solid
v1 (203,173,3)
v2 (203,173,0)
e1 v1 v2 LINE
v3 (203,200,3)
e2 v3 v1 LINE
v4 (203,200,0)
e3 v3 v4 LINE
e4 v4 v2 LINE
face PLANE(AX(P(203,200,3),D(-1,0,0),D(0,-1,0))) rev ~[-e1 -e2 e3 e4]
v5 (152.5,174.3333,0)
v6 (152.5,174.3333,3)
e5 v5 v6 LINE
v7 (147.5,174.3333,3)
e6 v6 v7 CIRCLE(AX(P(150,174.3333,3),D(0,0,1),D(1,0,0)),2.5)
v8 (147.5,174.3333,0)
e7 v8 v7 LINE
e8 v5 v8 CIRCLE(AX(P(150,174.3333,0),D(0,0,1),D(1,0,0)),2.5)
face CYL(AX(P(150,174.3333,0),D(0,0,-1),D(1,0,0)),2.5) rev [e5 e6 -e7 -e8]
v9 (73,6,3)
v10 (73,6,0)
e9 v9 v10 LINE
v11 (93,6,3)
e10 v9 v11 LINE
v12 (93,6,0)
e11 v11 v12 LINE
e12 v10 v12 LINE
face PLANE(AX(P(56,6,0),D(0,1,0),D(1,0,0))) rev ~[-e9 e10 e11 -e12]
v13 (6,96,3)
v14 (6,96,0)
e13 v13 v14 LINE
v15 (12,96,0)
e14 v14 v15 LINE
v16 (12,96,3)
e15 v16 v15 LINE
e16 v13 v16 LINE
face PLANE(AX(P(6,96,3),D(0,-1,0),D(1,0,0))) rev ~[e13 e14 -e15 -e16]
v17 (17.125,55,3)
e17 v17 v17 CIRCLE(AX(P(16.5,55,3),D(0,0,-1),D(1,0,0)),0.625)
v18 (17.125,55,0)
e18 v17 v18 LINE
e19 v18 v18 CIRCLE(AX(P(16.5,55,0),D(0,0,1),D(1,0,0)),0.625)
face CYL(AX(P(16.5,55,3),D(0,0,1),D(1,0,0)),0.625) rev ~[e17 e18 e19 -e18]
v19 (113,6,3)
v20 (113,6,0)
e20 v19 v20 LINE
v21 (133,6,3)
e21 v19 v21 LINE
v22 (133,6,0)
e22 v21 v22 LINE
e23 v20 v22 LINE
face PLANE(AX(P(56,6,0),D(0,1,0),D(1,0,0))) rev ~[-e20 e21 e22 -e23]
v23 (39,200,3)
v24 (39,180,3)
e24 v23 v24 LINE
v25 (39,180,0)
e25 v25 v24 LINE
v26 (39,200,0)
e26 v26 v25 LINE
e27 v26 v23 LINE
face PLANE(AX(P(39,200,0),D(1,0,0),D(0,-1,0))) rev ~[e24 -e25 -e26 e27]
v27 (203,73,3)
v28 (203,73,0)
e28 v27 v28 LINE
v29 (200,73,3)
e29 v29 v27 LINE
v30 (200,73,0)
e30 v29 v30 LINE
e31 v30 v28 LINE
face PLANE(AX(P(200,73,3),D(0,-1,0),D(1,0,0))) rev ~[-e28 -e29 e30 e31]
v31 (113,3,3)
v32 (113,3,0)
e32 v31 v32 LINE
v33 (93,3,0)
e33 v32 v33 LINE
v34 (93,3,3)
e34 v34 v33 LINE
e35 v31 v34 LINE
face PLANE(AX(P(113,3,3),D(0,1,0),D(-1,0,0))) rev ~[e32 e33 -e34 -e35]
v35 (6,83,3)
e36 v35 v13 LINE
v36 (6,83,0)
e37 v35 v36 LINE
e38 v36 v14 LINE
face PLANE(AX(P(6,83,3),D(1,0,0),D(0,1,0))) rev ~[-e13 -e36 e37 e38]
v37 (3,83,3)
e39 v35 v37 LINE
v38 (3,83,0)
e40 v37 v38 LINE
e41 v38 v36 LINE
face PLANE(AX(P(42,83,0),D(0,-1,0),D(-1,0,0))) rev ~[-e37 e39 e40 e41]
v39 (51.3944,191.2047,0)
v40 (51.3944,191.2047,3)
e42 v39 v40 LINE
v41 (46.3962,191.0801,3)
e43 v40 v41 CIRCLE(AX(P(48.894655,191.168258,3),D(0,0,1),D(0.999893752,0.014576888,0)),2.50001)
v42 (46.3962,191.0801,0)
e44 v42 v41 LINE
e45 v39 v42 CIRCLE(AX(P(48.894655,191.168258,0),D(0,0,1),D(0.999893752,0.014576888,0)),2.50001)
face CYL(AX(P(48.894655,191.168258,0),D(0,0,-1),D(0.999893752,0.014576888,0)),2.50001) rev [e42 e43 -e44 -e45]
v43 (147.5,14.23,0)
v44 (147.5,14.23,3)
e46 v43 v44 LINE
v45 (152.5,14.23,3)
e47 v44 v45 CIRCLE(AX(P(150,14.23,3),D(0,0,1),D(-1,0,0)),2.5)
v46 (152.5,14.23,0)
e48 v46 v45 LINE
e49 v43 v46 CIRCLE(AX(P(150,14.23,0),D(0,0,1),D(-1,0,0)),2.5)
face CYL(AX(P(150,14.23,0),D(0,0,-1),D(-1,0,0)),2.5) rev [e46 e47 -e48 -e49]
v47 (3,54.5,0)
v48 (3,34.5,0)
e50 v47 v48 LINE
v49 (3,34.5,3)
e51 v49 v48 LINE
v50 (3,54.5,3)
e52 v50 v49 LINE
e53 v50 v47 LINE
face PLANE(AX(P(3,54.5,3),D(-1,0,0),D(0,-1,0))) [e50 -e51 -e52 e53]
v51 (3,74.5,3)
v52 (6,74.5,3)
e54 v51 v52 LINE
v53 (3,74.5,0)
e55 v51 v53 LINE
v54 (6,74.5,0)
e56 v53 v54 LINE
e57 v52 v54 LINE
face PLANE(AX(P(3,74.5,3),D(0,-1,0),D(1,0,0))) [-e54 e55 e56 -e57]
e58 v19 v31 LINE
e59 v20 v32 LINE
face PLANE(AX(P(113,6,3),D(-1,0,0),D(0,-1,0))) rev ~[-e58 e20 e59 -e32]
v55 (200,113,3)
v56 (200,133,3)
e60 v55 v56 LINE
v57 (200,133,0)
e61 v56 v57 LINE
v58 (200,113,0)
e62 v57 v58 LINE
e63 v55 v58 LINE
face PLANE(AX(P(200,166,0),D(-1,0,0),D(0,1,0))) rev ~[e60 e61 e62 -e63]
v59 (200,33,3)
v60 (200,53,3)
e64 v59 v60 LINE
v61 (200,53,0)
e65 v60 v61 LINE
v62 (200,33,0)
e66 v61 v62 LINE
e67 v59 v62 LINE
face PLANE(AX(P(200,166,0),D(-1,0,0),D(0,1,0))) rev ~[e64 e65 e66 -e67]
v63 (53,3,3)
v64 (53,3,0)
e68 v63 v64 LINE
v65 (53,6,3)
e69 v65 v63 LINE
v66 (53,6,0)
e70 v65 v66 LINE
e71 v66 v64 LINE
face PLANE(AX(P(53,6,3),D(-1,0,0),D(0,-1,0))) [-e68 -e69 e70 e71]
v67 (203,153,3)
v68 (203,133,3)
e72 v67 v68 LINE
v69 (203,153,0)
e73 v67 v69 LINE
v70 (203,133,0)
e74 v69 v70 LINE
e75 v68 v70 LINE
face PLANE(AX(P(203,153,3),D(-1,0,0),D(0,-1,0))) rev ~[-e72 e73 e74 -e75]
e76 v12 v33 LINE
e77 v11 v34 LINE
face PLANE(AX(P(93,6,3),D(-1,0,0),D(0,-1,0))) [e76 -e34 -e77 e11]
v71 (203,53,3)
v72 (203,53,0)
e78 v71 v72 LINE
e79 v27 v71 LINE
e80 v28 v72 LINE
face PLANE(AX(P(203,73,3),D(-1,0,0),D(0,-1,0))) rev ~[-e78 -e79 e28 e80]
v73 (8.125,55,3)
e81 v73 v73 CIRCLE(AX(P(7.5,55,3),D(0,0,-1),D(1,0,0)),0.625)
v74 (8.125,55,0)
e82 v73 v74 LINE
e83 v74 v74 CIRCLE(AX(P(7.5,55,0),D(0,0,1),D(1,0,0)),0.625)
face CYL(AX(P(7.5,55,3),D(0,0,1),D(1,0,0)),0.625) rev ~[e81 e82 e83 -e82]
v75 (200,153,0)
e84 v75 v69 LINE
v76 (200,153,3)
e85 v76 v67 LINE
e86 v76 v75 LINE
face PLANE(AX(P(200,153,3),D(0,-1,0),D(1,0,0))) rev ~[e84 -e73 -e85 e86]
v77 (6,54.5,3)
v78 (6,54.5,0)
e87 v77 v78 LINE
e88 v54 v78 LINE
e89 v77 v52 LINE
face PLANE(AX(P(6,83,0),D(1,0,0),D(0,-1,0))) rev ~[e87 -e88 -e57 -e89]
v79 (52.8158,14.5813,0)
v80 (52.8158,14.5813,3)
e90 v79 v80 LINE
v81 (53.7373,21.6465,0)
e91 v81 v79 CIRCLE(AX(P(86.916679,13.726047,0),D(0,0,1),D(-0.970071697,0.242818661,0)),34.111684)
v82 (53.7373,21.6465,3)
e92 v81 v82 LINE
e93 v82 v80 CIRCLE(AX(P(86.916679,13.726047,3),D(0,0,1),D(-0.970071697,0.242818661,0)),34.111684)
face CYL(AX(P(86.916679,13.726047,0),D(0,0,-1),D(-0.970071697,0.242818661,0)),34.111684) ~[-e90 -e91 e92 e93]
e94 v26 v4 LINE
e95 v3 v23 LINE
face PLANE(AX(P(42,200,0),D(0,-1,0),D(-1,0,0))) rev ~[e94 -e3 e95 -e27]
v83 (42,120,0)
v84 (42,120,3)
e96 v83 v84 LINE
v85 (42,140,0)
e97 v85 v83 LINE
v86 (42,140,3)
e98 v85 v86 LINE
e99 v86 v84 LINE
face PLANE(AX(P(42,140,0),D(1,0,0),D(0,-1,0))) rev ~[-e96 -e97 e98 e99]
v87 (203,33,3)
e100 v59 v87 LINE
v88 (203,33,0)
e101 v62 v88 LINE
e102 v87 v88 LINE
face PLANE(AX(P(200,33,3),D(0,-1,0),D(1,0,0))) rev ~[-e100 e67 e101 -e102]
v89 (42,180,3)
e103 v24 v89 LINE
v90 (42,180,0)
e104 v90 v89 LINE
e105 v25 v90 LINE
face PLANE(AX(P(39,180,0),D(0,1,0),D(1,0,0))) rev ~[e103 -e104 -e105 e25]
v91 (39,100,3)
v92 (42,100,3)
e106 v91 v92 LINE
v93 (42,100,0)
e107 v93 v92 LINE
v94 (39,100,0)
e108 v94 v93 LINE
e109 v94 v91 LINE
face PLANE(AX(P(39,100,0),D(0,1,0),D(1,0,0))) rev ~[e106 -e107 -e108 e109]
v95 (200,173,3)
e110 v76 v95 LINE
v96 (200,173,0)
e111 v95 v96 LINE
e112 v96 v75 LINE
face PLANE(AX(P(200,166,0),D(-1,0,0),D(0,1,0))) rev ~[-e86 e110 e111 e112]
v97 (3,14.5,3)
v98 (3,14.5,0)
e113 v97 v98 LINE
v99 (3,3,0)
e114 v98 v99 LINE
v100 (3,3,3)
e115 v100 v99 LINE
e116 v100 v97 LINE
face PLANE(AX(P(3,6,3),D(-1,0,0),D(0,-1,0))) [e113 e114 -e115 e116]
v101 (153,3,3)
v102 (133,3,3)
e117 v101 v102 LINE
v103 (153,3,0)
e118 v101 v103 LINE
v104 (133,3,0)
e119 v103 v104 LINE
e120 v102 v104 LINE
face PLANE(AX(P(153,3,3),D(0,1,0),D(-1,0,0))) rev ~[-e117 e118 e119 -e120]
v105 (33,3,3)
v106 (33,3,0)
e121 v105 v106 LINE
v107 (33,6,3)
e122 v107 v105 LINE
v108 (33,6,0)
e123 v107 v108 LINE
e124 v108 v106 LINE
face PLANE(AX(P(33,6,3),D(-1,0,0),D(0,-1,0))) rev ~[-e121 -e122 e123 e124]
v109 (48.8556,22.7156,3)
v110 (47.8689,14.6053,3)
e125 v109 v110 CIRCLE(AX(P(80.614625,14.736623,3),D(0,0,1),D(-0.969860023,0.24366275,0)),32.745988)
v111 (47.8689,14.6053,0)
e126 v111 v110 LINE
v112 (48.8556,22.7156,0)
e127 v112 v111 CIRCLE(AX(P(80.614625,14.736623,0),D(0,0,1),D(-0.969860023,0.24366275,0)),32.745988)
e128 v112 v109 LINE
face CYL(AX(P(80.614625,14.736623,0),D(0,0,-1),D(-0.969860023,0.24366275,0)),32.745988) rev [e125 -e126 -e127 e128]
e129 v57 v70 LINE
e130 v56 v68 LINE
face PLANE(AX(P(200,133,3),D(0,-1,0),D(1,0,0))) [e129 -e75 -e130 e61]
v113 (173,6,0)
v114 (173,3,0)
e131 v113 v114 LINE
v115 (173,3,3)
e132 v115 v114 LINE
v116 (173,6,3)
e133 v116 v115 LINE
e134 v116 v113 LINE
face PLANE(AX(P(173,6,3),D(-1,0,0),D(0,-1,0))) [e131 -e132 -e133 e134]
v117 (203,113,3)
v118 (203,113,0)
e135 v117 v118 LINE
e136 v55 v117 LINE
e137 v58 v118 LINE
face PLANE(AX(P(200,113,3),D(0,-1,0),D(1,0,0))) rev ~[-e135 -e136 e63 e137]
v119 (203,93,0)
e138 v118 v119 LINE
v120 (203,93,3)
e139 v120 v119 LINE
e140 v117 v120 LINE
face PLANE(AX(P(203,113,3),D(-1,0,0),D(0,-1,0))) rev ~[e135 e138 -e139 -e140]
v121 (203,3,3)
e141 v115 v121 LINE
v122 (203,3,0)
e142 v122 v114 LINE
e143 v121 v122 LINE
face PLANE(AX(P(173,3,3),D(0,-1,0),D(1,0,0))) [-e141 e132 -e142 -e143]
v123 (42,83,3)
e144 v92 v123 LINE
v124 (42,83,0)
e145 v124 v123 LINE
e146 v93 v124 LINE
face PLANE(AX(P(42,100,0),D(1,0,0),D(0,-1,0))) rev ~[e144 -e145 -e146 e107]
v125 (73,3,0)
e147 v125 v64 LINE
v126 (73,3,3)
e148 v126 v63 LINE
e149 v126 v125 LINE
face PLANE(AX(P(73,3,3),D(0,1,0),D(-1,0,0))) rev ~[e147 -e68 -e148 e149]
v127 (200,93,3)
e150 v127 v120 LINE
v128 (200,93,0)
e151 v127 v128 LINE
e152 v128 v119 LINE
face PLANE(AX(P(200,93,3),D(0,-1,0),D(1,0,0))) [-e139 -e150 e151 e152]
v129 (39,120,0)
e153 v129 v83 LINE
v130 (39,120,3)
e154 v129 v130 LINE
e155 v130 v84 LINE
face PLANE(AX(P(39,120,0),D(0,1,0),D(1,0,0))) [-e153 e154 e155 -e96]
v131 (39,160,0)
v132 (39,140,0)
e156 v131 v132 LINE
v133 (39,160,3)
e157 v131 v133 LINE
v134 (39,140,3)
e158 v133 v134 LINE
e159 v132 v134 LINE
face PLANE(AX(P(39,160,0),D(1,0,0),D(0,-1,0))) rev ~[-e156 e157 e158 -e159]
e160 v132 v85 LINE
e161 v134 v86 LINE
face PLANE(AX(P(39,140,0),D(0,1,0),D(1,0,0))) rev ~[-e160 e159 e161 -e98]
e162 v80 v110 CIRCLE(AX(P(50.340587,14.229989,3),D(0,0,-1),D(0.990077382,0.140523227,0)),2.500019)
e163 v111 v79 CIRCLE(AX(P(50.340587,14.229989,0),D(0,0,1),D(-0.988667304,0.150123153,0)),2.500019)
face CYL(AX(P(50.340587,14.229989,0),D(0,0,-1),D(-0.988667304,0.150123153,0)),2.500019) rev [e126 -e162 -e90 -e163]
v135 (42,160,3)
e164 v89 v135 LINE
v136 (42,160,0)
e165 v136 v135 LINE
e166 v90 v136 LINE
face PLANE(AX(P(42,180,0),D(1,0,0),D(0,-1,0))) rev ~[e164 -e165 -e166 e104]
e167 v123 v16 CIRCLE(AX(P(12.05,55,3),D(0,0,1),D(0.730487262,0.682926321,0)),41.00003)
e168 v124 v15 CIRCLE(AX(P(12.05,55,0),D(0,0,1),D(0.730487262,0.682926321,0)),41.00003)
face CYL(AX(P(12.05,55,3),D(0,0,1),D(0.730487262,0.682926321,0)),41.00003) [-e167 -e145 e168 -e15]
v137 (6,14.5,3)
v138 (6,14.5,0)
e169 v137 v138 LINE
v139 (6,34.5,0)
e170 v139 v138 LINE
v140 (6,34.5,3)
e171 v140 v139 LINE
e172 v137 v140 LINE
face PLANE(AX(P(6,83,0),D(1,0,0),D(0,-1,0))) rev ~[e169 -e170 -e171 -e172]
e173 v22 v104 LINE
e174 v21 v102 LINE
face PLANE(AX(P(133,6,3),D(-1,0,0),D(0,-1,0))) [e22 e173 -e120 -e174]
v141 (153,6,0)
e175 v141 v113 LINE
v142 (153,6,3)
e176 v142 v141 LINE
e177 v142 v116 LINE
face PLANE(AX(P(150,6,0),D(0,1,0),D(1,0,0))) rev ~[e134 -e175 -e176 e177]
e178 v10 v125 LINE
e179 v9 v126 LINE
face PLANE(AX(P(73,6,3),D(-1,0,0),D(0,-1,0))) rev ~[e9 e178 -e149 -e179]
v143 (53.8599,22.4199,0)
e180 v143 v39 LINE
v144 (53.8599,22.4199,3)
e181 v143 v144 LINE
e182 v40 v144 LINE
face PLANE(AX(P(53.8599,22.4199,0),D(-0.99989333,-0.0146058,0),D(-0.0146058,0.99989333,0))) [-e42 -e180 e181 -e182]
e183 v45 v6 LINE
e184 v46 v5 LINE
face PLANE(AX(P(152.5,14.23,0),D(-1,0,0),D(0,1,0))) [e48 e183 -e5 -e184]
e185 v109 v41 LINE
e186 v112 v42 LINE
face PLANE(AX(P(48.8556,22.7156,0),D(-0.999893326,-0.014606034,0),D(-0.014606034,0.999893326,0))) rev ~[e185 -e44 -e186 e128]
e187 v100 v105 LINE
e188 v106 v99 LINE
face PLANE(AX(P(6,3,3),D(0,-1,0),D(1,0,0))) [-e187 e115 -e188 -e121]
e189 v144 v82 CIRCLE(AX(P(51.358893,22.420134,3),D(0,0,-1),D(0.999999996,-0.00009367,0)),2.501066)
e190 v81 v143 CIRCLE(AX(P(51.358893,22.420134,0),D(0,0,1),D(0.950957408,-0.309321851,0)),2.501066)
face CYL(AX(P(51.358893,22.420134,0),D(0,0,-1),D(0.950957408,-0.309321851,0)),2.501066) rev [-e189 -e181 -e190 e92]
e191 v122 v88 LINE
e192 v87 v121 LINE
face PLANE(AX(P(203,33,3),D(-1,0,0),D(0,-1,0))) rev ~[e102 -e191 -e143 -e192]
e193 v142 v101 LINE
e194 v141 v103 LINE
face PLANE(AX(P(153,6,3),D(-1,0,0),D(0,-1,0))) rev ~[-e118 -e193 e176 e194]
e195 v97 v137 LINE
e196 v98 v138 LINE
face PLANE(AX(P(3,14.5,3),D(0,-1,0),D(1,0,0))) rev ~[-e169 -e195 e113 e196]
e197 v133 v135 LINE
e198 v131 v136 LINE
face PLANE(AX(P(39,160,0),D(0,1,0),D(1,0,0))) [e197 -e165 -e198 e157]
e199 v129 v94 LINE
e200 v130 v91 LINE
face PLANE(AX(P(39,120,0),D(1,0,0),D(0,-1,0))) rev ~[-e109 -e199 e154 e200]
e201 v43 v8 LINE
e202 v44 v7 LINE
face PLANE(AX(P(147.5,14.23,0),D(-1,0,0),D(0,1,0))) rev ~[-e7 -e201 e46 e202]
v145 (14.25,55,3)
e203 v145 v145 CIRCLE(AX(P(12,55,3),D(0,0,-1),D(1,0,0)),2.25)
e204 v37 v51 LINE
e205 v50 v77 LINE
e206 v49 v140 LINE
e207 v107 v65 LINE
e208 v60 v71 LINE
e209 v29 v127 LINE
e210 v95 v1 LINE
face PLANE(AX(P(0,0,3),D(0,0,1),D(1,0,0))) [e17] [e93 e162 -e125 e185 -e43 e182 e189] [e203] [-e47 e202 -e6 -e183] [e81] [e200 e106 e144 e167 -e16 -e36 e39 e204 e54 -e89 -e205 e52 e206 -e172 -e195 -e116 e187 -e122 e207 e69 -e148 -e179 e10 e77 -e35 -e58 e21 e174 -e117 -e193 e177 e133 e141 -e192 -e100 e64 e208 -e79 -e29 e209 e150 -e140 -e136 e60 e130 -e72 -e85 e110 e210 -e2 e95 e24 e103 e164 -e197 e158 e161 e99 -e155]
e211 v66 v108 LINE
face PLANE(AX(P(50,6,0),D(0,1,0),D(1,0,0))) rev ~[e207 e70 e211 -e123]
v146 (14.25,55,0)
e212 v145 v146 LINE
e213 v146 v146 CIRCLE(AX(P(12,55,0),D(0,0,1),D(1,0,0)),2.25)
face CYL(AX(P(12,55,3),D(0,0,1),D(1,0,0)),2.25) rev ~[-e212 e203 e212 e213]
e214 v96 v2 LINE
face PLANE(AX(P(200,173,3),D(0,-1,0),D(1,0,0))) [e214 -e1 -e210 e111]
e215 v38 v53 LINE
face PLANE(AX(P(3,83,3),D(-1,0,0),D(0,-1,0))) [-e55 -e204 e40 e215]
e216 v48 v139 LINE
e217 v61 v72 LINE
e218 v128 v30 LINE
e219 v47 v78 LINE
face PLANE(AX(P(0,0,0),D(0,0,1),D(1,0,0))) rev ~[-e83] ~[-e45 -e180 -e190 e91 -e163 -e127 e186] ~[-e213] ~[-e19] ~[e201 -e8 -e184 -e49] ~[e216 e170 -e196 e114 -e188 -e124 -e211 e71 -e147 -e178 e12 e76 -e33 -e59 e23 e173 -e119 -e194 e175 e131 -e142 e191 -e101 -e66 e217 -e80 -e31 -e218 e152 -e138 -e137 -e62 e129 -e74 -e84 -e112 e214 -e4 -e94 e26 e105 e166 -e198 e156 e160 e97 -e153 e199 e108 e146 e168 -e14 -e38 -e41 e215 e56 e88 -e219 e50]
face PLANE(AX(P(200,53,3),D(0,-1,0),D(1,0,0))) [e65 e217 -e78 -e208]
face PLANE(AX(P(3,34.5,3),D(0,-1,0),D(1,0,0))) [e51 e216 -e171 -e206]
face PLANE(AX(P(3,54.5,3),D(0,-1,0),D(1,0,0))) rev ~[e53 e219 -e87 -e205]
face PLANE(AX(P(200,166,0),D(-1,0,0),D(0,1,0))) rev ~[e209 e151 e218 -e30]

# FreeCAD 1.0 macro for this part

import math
import FreeCAD as App
import Part
import Sketcher
Q = App.Units.Quantity


def add_polygon(sketch, points):
    """Adds a closed chain of lines whose ends are joined by coincident constraints."""
    first, n = sketch.GeometryCount, len(points)
    for a, b in zip(points, points[1:] + points[:1]):
        sketch.addGeometry(Part.LineSegment(App.Vector(*a, 0), App.Vector(*b, 0)), False)
    for i in range(n):
        sketch.addConstraint(Sketcher.Constraint("Coincident", first + i, 2, first + (i + 1) % n, 1))

doc = App.newDocument("Part")
body = doc.addObject("PartDesign::Body", "Body")

sketch1 = body.newObject("Sketcher::SketchObject", "Sketch")
sketch1.AttachmentSupport = (doc.getObject("XY_Plane"), [""])
sketch1.MapMode = "FlatFace"
add_polygon(sketch1, [(6, 83), (6, 6), (200, 6), (200, 200), (39, 200), (39, 180), (42, 180), (42, 160), (39, 160), (39, 140), (42, 140), (42, 120), (39, 120), (39, 100), (42, 100), (42, 83)])
sketch1.addGeometry(Part.ArcOfCircle(Part.Circle(App.Vector(50.3, 14.2, 0), App.Vector(0, 0, 1), 2.5), math.radians(171), math.radians(368)), False)
sketch1.addGeometry(Part.ArcOfCircle(Part.Circle(App.Vector(80.6, 14.7, 0), App.Vector(0, 0, 1), 32.7), math.radians(165.9), math.radians(180.23)), False)
sketch1.addGeometry(Part.LineSegment(App.Vector(48.9, 22.7, 0), App.Vector(46.4, 191.1, 0)), False)
sketch1.addGeometry(Part.ArcOfCircle(Part.Circle(App.Vector(48.9, 191.2, 0), App.Vector(0, 0, 1), 2.5), math.radians(1), math.radians(182)), False)
sketch1.addGeometry(Part.LineSegment(App.Vector(51.4, 191.2, 0), App.Vector(53.9, 22.4, 0)), False)
sketch1.addGeometry(Part.ArcOfCircle(Part.Circle(App.Vector(51.4, 22.4, 0), App.Vector(0, 0, 1), 2.5), math.radians(-18.02), math.radians(-0.01)), False)
sketch1.addGeometry(Part.ArcOfCircle(Part.Circle(App.Vector(86.9, 13.7, 0), App.Vector(0, 0, 1), 34.1), math.radians(166.57), math.radians(178.56)), False)
sketch1.addGeometry(Part.ArcOfCircle(Part.Circle(App.Vector(150, 174.3, 0), App.Vector(0, 0, 1), 2.5), math.radians(0), math.radians(180)), False)
sketch1.addGeometry(Part.LineSegment(App.Vector(152.5, 174.3, 0), App.Vector(152.5, 14.2, 0)), False)
sketch1.addGeometry(Part.ArcOfCircle(Part.Circle(App.Vector(150, 14.2, 0), App.Vector(0, 0, 1), 2.5), math.radians(180), math.radians(360)), False)
sketch1.addGeometry(Part.LineSegment(App.Vector(147.5, 14.2, 0), App.Vector(147.5, 174.3, 0)), False)
sketch1.addConstraint([
    Sketcher.Constraint("Coincident", 16, 1, 17, 2),
    Sketcher.Constraint("Coincident", 17, 1, 18, 1),
    Sketcher.Constraint("Coincident", 18, 2, 19, 2),
    Sketcher.Constraint("Tangent", 19, 1, 20, 1),
    Sketcher.Constraint("Coincident", 20, 2, 21, 2),
    Sketcher.Constraint("Coincident", 21, 1, 22, 1),
    Sketcher.Constraint("Coincident", 22, 2, 16, 2),
    Sketcher.Constraint("Tangent", 23, 1, 24, 1),
    Sketcher.Constraint("Tangent", 24, 2, 25, 2),
    Sketcher.Constraint("Tangent", 25, 1, 26, 1),
    Sketcher.Constraint("Tangent", 26, 2, 23, 2),
    Sketcher.Constraint("Vertical", 0),
    Sketcher.Constraint("Horizontal", 1),
    Sketcher.Constraint("Vertical", 2),
    Sketcher.Constraint("Horizontal", 3),
    Sketcher.Constraint("Vertical", 4),
    Sketcher.Constraint("Horizontal", 5),
    Sketcher.Constraint("Vertical", 6),
    Sketcher.Constraint("Horizontal", 7),
    Sketcher.Constraint("Vertical", 8),
    Sketcher.Constraint("Horizontal", 9),
    Sketcher.Constraint("Vertical", 10),
    Sketcher.Constraint("Horizontal", 11),
    Sketcher.Constraint("Vertical", 12),
    Sketcher.Constraint("Horizontal", 13),
    Sketcher.Constraint("Vertical", 14),
    Sketcher.Constraint("Horizontal", 15),
    Sketcher.Constraint("Vertical", 24),
    Sketcher.Constraint("Vertical", 26),
    Sketcher.Constraint("Equal", 16, 19),
    Sketcher.Constraint("Equal", 19, 23),
    Sketcher.Constraint("Parallel", 18, 20),
    Sketcher.Constraint("Horizontal", 16, 3, 25, 3),
    Sketcher.Constraint("Vertical", 4, 2, 7, 2),
    Sketcher.Constraint("Vertical", 6, 2, 9, 2),
    Sketcher.Constraint("Vertical", 8, 2, 11, 2),
    Sketcher.Constraint("Vertical", 10, 2, 13, 2),
    Sketcher.Constraint("Equal", 1, 2),
    Sketcher.Constraint("Equal", 4, 6),
    Sketcher.Constraint("Equal", 6, 8),
    Sketcher.Constraint("Equal", 8, 10),
    Sketcher.Constraint("Equal", 10, 12),
    Sketcher.Constraint("DistanceX", 1, 1, 1, 2, Q("194 mm")),
    Sketcher.Constraint("Radius", 16, Q("2.5 mm")),
    Sketcher.Constraint("DistanceX", 3, 2, 3, 1, Q("161 mm")),
    Sketcher.Constraint("DistanceX", 5, 1, 5, 2, Q("3 mm")),
    Sketcher.Constraint("DistanceY", 0, 2, 0, 1, Q("77 mm")),
    Sketcher.Constraint("DistanceY", 4, 2, 4, 1, Q("20 mm")),
    Sketcher.Constraint("DistanceX", -1, 1, 23, 3, Q("150 mm")),
    Sketcher.Constraint("DistanceX", -1, 1, 0, 2, Q("6 mm")),
    Sketcher.Constraint("DistanceY", -1, 1, 0, 2, Q("6 mm")),
    Sketcher.Constraint("Radius", 17, Q("32.746 mm")),
    Sketcher.Constraint("Radius", 21, Q("2.501 mm")),
    Sketcher.Constraint("Radius", 22, Q("34.1117 mm")),
    Sketcher.Constraint("DistanceY", -1, 1, 16, 3, Q("14.23 mm")),
    Sketcher.Constraint("DistanceY", -1, 1, 18, 2, Q("191.08 mm")),
    Sketcher.Constraint("DistanceX", -1, 1, 20, 2, Q("53.86 mm")),
    Sketcher.Constraint("DistanceY", -1, 1, 20, 2, Q("22.42 mm")),
    Sketcher.Constraint("DistanceX", 19, 3, 17, 3, Q("31.72 mm")),
    Sketcher.Constraint("DistanceX", 16, 1, 21, 3, Q("3.49 mm")),
    Sketcher.Constraint("DistanceY", 24, 2, 24, 1, Q("160.1033 mm")),
    Sketcher.Constraint("DistanceY", -1, 1, 22, 3, Q("13.726 mm")),
    Sketcher.Constraint("DistanceX", 16, 3, 17, 3, Q("30.274 mm")),
    Sketcher.Constraint("DistanceY", 21, 3, 19, 3, Q("168.748 mm")),
    Sketcher.Constraint("DistanceX", 17, 3, 22, 3, Q("6.302 mm")),
    Sketcher.Constraint("DistanceY", 22, 3, 21, 3, Q("8.694 mm")),
    Sketcher.Constraint("DistanceY", 21, 1, 17, 1, Q("1.069 mm")),
])
pad1 = body.newObject("PartDesign::Pad", "Pad")
pad1.Profile = sketch1
pad1.Length = 3

sketch2 = body.newObject("Sketcher::SketchObject", "Sketch001")
sketch2.AttachmentSupport = (doc.getObject("XY_Plane"), [""])
sketch2.MapMode = "FlatFace"
sketch2.AttachmentOffset = App.Placement(App.Vector(0, 0, 3), App.Rotation())
add_polygon(sketch2, [(200, 3), (200, 6), (173, 6), (173, 3)])
add_polygon(sketch2, [(153, 3), (153, 6), (133, 6), (133, 3)])
add_polygon(sketch2, [(113, 3), (113, 6), (93, 6), (93, 3)])
add_polygon(sketch2, [(73, 3), (73, 6), (53, 6), (53, 3)])
add_polygon(sketch2, [(33, 3), (33, 6), (6, 6), (6, 3)])
sketch2.addConstraint([
    Sketcher.Constraint("Vertical", 0),
    Sketcher.Constraint("Horizontal", 1),
    Sketcher.Constraint("Vertical", 2),
    Sketcher.Constraint("Horizontal", 3),
    Sketcher.Constraint("Vertical", 4),
    Sketcher.Constraint("Horizontal", 5),
    Sketcher.Constraint("Vertical", 6),
    Sketcher.Constraint("Horizontal", 7),
    Sketcher.Constraint("Vertical", 8),
    Sketcher.Constraint("Horizontal", 9),
    Sketcher.Constraint("Vertical", 10),
    Sketcher.Constraint("Horizontal", 11),
    Sketcher.Constraint("Vertical", 12),
    Sketcher.Constraint("Horizontal", 13),
    Sketcher.Constraint("Vertical", 14),
    Sketcher.Constraint("Horizontal", 15),
    Sketcher.Constraint("Vertical", 16),
    Sketcher.Constraint("Horizontal", 17),
    Sketcher.Constraint("Vertical", 18),
    Sketcher.Constraint("Horizontal", 19),
    Sketcher.Constraint("Horizontal", 1, 2, 4, 2),
    Sketcher.Constraint("Horizontal", 3, 2, 6, 2),
    Sketcher.Constraint("Horizontal", 5, 2, 8, 2),
    Sketcher.Constraint("Horizontal", 7, 2, 10, 2),
    Sketcher.Constraint("Horizontal", 9, 2, 12, 2),
    Sketcher.Constraint("Horizontal", 11, 2, 14, 2),
    Sketcher.Constraint("Horizontal", 13, 2, 16, 2),
    Sketcher.Constraint("Horizontal", 15, 2, 18, 2),
    Sketcher.Constraint("Equal", 7, 9),
    Sketcher.Constraint("Equal", 11, 13),
    Sketcher.Constraint("Equal", 3, 17),
    Sketcher.Constraint("DistanceX", 1, 2, 1, 1, Q("27 mm")),
    Sketcher.Constraint("DistanceX", 5, 2, 5, 1, Q("20 mm")),
    Sketcher.Constraint("DistanceY", 0, 1, 0, 2, Q("3 mm")),
    Sketcher.Constraint("DistanceX", -1, 1, 0, 2, Q("200 mm")),
    Sketcher.Constraint("DistanceY", -1, 1, 0, 2, Q("6 mm")),
    Sketcher.Constraint("DistanceX", -1, 1, 4, 2, Q("153 mm")),
    Sketcher.Constraint("DistanceX", -1, 1, 8, 2, Q("113 mm")),
    Sketcher.Constraint("DistanceX", -1, 1, 12, 2, Q("73 mm")),
    Sketcher.Constraint("DistanceX", -1, 1, 16, 2, Q("33 mm")),
])
pad2 = body.newObject("PartDesign::Pad", "Pad001")
pad2.Profile = sketch2
pad2.Length = 3
pad2.Reversed = True

sketch3 = body.newObject("Sketcher::SketchObject", "Sketch002")
sketch3.AttachmentSupport = (doc.getObject("XY_Plane"), [""])
sketch3.MapMode = "FlatFace"
sketch3.AttachmentOffset = App.Placement(App.Vector(0, 0, 3), App.Rotation())
add_polygon(sketch3, [(3, 3), (6, 3), (6, 14.5), (3, 14.5)])
add_polygon(sketch3, [(6, 74.5), (6, 83), (3, 83), (3, 74.5)])
add_polygon(sketch3, [(3, 34.5), (6, 34.5), (6, 54.5), (3, 54.5)])
sketch3.addConstraint([
    Sketcher.Constraint("Horizontal", 0),
    Sketcher.Constraint("Vertical", 1),
    Sketcher.Constraint("Horizontal", 2),
    Sketcher.Constraint("Vertical", 3),
    Sketcher.Constraint("Vertical", 4),
    Sketcher.Constraint("Horizontal", 5),
    Sketcher.Constraint("Vertical", 6),
    Sketcher.Constraint("Horizontal", 7),
    Sketcher.Constraint("Horizontal", 8),
    Sketcher.Constraint("Vertical", 9),
    Sketcher.Constraint("Horizontal", 10),
    Sketcher.Constraint("Vertical", 11),
    Sketcher.Constraint("Vertical", 1, 2, 4, 2),
    Sketcher.Constraint("Vertical", 3, 2, 5, 2),
    Sketcher.Constraint("Vertical", 7, 2, 8, 2),
    Sketcher.Constraint("Vertical", 6, 2, 10, 2),
    Sketcher.Constraint("DistanceX", 0, 1, 0, 2, Q("3 mm")),
    Sketcher.Constraint("DistanceY", -1, 1, 0, 2, Q("3 mm")),
    Sketcher.Constraint("DistanceX", -1, 1, 2, 2, Q("3 mm")),
    Sketcher.Constraint("DistanceY", 9, 1, 9, 2, Q("20 mm")),
    Sketcher.Constraint("DistanceY", 1, 1, 1, 2, Q("11.5 mm")),
    Sketcher.Constraint("DistanceY", 4, 1, 4, 2, Q("8.5 mm")),
    Sketcher.Constraint("DistanceY", -1, 1, 4, 2, Q("83 mm")),
    Sketcher.Constraint("DistanceY", 1, 2, 8, 2, Q("20 mm")),
])
pad3 = body.newObject("PartDesign::Pad", "Pad002")
pad3.Profile = sketch3
pad3.Length = 3
pad3.Reversed = True

sketch4 = body.newObject("Sketcher::SketchObject", "Sketch003")
sketch4.AttachmentSupport = (doc.getObject("XY_Plane"), [""])
sketch4.MapMode = "FlatFace"
sketch4.AttachmentOffset = App.Placement(App.Vector(0, 0, 3), App.Rotation())
add_polygon(sketch4, [(200, 33), (200, 3), (203, 3), (203, 33)])
add_polygon(sketch4, [(200, 73), (200, 53), (203, 53), (203, 73)])
add_polygon(sketch4, [(200, 113), (200, 93), (203, 93), (203, 113)])
add_polygon(sketch4, [(200, 153), (200, 133), (203, 133), (203, 153)])
add_polygon(sketch4, [(200, 200), (200, 173), (203, 173), (203, 200)])
sketch4.addConstraint([
    Sketcher.Constraint("Vertical", 0),
    Sketcher.Constraint("Horizontal", 1),
    Sketcher.Constraint("Vertical", 2),
    Sketcher.Constraint("Horizontal", 3),
    Sketcher.Constraint("Vertical", 4),
    Sketcher.Constraint("Horizontal", 5),
    Sketcher.Constraint("Vertical", 6),
    Sketcher.Constraint("Horizontal", 7),
    Sketcher.Constraint("Vertical", 8),
    Sketcher.Constraint("Horizontal", 9),
    Sketcher.Constraint("Vertical", 10),
    Sketcher.Constraint("Horizontal", 11),
    Sketcher.Constraint("Vertical", 12),
    Sketcher.Constraint("Horizontal", 13),
    Sketcher.Constraint("Vertical", 14),
    Sketcher.Constraint("Horizontal", 15),
    Sketcher.Constraint("Vertical", 16),
    Sketcher.Constraint("Horizontal", 17),
    Sketcher.Constraint("Vertical", 18),
    Sketcher.Constraint("Horizontal", 19),
    Sketcher.Constraint("Vertical", 3, 2, 4, 2),
    Sketcher.Constraint("Vertical", 2, 2, 5, 2),
    Sketcher.Constraint("Vertical", 7, 2, 8, 2),
    Sketcher.Constraint("Vertical", 6, 2, 9, 2),
    Sketcher.Constraint("Vertical", 11, 2, 12, 2),
    Sketcher.Constraint("Vertical", 10, 2, 13, 2),
    Sketcher.Constraint("Vertical", 15, 2, 16, 2),
    Sketcher.Constraint("Vertical", 14, 2, 17, 2),
    Sketcher.Constraint("Equal", 6, 8),
    Sketcher.Constraint("Equal", 10, 12),
    Sketcher.Constraint("DistanceX", 1, 1, 1, 2, Q("3 mm")),
    Sketcher.Constraint("DistanceY", 0, 2, 0, 1, Q("30 mm")),
    Sketcher.Constraint("DistanceY", 4, 2, 4, 1, Q("20 mm")),
    Sketcher.Constraint("DistanceY", 16, 2, 16, 1, Q("27 mm")),
    Sketcher.Constraint("DistanceX", -1, 1, 0, 2, Q("200 mm")),
    Sketcher.Constraint("DistanceY", -1, 1, 0, 2, Q("3 mm")),
    Sketcher.Constraint("DistanceY", -1, 1, 4, 2, Q("53 mm")),
    Sketcher.Constraint("DistanceY", -1, 1, 8, 2, Q("93 mm")),
    Sketcher.Constraint("DistanceY", -1, 1, 12, 2, Q("133 mm")),
    Sketcher.Constraint("DistanceY", -1, 1, 16, 2, Q("173 mm")),
])
pad4 = body.newObject("PartDesign::Pad", "Pad003")
pad4.Profile = sketch4
pad4.Length = 3
pad4.Reversed = True

sketch5 = body.newObject("Sketcher::SketchObject", "Sketch004")
sketch5.AttachmentSupport = (doc.getObject("XY_Plane"), [""])
sketch5.MapMode = "FlatFace"
sketch5.AttachmentOffset = App.Placement(App.Vector(0, 0, 3), App.Rotation())
sketch5.addGeometry([
    Part.Circle(App.Vector(7.5, 55, 0), App.Vector(0, 0, 1), 0.6),
    Part.Circle(App.Vector(16.5, 55, 0), App.Vector(0, 0, 1), 0.6),
    Part.Circle(App.Vector(12, 55, 0), App.Vector(0, 0, 1), 2.2),
], False)
sketch5.addConstraint([
    Sketcher.Constraint("Equal", 0, 1),
    Sketcher.Constraint("Horizontal", 0, 3, 1, 3),
    Sketcher.Constraint("Horizontal", 1, 3, 2, 3),
    Sketcher.Constraint("Diameter", 2, Q("4.5 mm")),
    Sketcher.Constraint("Diameter", 0, Q("1.25 mm")),
    Sketcher.Constraint("DistanceX", -1, 1, 2, 3, Q("12 mm")),
    Sketcher.Constraint("DistanceX", 0, 3, 1, 3, Q("9 mm")),
    Sketcher.Constraint("DistanceX", 0, 3, 2, 3, Q("4.5 mm")),
    Sketcher.Constraint("DistanceY", -1, 1, 0, 3, Q("55 mm")),
])
pocket1 = body.newObject("PartDesign::Pocket", "Pocket")
pocket1.Profile = sketch5
pocket1.Length = 3

sketch6 = body.newObject("Sketcher::SketchObject", "Sketch005")
sketch6.AttachmentSupport = (doc.getObject("XY_Plane"), [""])
sketch6.MapMode = "FlatFace"
sketch6.AttachmentOffset = App.Placement(App.Vector(0, 0, 3), App.Rotation())
sketch6.addGeometry([
    Part.ArcOfCircle(Part.Circle(App.Vector(12, 55, 0), App.Vector(0, 0, 1), 41), math.radians(43), math.radians(90)),
    Part.LineSegment(App.Vector(12, 96, 0), App.Vector(6, 96, 0)),
    Part.LineSegment(App.Vector(6, 96, 0), App.Vector(6, 83, 0)),
    Part.LineSegment(App.Vector(6, 83, 0), App.Vector(42, 83, 0)),
], False)
sketch6.addConstraint([
    Sketcher.Constraint("Coincident", 0, 2, 1, 1),
    Sketcher.Constraint("Coincident", 1, 2, 2, 1),
    Sketcher.Constraint("Coincident", 2, 2, 3, 1),
    Sketcher.Constraint("Coincident", 3, 2, 0, 1),
    Sketcher.Constraint("Horizontal", 1),
    Sketcher.Constraint("Vertical", 2),
    Sketcher.Constraint("Horizontal", 3),
    Sketcher.Constraint("Radius", 0, Q("41 mm")),
    Sketcher.Constraint("DistanceY", 2, 2, 2, 1, Q("13 mm")),
    Sketcher.Constraint("DistanceX", 1, 2, 1, 1, Q("6 mm")),
    Sketcher.Constraint("DistanceX", 3, 1, 3, 2, Q("36 mm")),
    Sketcher.Constraint("DistanceY", -1, 1, 0, 3, Q("55 mm")),
    Sketcher.Constraint("DistanceX", -1, 1, 0, 2, Q("12 mm")),
])
pad5 = body.newObject("PartDesign::Pad", "Pad004")
pad5.Profile = sketch6
pad5.Length = 3
pad5.Reversed = True

doc.recompute()
